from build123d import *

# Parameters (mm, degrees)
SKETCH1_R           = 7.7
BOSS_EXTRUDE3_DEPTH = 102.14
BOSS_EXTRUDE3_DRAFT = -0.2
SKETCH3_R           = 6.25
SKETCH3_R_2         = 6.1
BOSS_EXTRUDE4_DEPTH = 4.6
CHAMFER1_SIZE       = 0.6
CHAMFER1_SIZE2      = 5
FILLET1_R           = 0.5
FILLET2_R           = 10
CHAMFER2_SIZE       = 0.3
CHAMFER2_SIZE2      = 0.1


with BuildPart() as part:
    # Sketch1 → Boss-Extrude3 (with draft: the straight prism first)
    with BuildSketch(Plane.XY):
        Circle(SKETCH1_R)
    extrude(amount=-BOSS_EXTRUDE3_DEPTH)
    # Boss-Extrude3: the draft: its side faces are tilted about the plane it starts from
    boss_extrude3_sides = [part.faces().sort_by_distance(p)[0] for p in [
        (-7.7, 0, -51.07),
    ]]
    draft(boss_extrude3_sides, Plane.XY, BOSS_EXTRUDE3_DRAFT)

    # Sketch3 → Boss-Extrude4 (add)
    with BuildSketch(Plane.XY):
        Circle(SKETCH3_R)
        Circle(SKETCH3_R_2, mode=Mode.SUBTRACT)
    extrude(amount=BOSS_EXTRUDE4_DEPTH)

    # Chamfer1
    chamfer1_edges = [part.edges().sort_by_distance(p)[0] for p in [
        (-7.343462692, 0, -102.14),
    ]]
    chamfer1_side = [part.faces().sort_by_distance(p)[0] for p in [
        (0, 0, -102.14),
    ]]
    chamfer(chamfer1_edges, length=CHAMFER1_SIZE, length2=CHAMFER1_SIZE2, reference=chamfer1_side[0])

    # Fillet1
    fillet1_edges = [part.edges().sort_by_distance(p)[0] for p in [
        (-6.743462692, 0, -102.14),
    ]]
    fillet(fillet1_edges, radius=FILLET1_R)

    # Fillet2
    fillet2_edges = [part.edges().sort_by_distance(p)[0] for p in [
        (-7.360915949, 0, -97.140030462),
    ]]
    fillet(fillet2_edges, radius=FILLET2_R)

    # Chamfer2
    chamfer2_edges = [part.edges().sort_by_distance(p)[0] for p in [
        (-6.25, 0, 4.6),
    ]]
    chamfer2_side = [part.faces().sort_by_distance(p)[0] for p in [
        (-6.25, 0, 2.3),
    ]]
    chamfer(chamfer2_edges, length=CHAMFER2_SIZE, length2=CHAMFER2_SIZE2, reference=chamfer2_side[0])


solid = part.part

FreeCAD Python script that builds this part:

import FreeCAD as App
import Part
import Sketcher


def edges_at(feature, points):
    """Names of the edges that pass closest to the given points."""
    edges = feature.Shape.Edges
    near = lambda p: min(range(len(edges)), key=lambda i: edges[i].distToShape(Part.Vertex(*p))[0])
    return sorted({f"Edge{near(p) + 1}" for p in points})


def faces_at(feature, points):
    """Names of the faces that lie closest to the given points."""
    faces = feature.Shape.Faces
    near = lambda p: min(range(len(faces)), key=lambda i: faces[i].distToShape(Part.Vertex(*p))[0])
    return sorted({f"Face{near(p) + 1}" for p in points})

doc = App.newDocument("Part")
body = doc.addObject("PartDesign::Body", "Body")

# Sketch on XY plane
sketch1 = doc.addObject("Sketcher::SketchObject", "Sketch")
body.addObject(sketch1)
sketch1.AttachmentSupport = (doc.XY_Plane, [""])
sketch1.MapMode = "FlatFace"
sketch1.addGeometry(Part.Circle(App.Vector(0, 0, 0), App.Vector(0, 0, 1), 8), False)
sketch1.addConstraint(Sketcher.Constraint("Coincident", 0, 3, -1, 1))
sketch1.addConstraint(Sketcher.Constraint("Diameter", 0, 15.4))
pad1 = doc.addObject("PartDesign::Pad", "Pad")
body.addObject(pad1)
pad1.Profile = sketch1
pad1.Length = 102.14
pad1.Reversed = True
doc.recompute()

draft = doc.addObject("PartDesign::Draft", "Draft")
body.addObject(draft)
draft.Base = (pad1, faces_at(pad1, [(-7.7, 0, -51.07)]))
draft.NeutralPlane = (doc.XY_Plane, [""])
draft.Angle = 0.2
draft.Reversed = True

# Sketch on XY plane
sketch2 = doc.addObject("Sketcher::SketchObject", "Sketch001")
body.addObject(sketch2)
sketch2.AttachmentSupport = (doc.XY_Plane, [""])
sketch2.MapMode = "FlatFace"
sketch2.addGeometry(Part.Circle(App.Vector(0, 0, 0), App.Vector(0, 0, 1), 6), False)
sketch2.addGeometry(Part.Circle(App.Vector(0, 0, 0), App.Vector(0, 0, 1), 6), False)
sketch2.addConstraint(Sketcher.Constraint("Coincident", 0, 3, -1, 1))
sketch2.addConstraint(Sketcher.Constraint("Coincident", 1, 3, -1, 1))
sketch2.addConstraint(Sketcher.Constraint("Diameter", 0, 12.5))
sketch2.addConstraint(Sketcher.Constraint("Diameter", 1, 12.2))
pad2 = doc.addObject("PartDesign::Pad", "Pad001")
body.addObject(pad2)
pad2.Profile = sketch2
pad2.Length = 4.6
doc.recompute()

chamfer = doc.addObject("PartDesign::Chamfer", "Chamfer")
body.addObject(chamfer)
chamfer.Base = (pad2, edges_at(pad2, [(-7.343, 0, -102.14)]))
chamfer.ChamferType = "Two distances"
chamfer.Size = 0.6
chamfer.Size2 = 5
chamfer.FlipDirection = True
doc.recompute()

fillet = doc.addObject("PartDesign::Fillet", "Fillet")
body.addObject(fillet)
fillet.Base = (chamfer, edges_at(chamfer, [(-6.743, 0, -102.14)]))
fillet.Radius = 0.5
doc.recompute()

fillet2 = doc.addObject("PartDesign::Fillet", "Fillet001")
body.addObject(fillet2)
fillet2.Base = (fillet, edges_at(fillet, [(-7.361, 0, -97.14)]))
fillet2.Radius = 10
doc.recompute()

chamfer2 = doc.addObject("PartDesign::Chamfer", "Chamfer001")
body.addObject(chamfer2)
chamfer2.Base = (fillet2, edges_at(fillet2, [(-6.25, 0, 4.6)]))
chamfer2.ChamferType = "Two distances"
chamfer2.Size = 0.3
chamfer2.Size2 = 0.1

doc.recompute()
